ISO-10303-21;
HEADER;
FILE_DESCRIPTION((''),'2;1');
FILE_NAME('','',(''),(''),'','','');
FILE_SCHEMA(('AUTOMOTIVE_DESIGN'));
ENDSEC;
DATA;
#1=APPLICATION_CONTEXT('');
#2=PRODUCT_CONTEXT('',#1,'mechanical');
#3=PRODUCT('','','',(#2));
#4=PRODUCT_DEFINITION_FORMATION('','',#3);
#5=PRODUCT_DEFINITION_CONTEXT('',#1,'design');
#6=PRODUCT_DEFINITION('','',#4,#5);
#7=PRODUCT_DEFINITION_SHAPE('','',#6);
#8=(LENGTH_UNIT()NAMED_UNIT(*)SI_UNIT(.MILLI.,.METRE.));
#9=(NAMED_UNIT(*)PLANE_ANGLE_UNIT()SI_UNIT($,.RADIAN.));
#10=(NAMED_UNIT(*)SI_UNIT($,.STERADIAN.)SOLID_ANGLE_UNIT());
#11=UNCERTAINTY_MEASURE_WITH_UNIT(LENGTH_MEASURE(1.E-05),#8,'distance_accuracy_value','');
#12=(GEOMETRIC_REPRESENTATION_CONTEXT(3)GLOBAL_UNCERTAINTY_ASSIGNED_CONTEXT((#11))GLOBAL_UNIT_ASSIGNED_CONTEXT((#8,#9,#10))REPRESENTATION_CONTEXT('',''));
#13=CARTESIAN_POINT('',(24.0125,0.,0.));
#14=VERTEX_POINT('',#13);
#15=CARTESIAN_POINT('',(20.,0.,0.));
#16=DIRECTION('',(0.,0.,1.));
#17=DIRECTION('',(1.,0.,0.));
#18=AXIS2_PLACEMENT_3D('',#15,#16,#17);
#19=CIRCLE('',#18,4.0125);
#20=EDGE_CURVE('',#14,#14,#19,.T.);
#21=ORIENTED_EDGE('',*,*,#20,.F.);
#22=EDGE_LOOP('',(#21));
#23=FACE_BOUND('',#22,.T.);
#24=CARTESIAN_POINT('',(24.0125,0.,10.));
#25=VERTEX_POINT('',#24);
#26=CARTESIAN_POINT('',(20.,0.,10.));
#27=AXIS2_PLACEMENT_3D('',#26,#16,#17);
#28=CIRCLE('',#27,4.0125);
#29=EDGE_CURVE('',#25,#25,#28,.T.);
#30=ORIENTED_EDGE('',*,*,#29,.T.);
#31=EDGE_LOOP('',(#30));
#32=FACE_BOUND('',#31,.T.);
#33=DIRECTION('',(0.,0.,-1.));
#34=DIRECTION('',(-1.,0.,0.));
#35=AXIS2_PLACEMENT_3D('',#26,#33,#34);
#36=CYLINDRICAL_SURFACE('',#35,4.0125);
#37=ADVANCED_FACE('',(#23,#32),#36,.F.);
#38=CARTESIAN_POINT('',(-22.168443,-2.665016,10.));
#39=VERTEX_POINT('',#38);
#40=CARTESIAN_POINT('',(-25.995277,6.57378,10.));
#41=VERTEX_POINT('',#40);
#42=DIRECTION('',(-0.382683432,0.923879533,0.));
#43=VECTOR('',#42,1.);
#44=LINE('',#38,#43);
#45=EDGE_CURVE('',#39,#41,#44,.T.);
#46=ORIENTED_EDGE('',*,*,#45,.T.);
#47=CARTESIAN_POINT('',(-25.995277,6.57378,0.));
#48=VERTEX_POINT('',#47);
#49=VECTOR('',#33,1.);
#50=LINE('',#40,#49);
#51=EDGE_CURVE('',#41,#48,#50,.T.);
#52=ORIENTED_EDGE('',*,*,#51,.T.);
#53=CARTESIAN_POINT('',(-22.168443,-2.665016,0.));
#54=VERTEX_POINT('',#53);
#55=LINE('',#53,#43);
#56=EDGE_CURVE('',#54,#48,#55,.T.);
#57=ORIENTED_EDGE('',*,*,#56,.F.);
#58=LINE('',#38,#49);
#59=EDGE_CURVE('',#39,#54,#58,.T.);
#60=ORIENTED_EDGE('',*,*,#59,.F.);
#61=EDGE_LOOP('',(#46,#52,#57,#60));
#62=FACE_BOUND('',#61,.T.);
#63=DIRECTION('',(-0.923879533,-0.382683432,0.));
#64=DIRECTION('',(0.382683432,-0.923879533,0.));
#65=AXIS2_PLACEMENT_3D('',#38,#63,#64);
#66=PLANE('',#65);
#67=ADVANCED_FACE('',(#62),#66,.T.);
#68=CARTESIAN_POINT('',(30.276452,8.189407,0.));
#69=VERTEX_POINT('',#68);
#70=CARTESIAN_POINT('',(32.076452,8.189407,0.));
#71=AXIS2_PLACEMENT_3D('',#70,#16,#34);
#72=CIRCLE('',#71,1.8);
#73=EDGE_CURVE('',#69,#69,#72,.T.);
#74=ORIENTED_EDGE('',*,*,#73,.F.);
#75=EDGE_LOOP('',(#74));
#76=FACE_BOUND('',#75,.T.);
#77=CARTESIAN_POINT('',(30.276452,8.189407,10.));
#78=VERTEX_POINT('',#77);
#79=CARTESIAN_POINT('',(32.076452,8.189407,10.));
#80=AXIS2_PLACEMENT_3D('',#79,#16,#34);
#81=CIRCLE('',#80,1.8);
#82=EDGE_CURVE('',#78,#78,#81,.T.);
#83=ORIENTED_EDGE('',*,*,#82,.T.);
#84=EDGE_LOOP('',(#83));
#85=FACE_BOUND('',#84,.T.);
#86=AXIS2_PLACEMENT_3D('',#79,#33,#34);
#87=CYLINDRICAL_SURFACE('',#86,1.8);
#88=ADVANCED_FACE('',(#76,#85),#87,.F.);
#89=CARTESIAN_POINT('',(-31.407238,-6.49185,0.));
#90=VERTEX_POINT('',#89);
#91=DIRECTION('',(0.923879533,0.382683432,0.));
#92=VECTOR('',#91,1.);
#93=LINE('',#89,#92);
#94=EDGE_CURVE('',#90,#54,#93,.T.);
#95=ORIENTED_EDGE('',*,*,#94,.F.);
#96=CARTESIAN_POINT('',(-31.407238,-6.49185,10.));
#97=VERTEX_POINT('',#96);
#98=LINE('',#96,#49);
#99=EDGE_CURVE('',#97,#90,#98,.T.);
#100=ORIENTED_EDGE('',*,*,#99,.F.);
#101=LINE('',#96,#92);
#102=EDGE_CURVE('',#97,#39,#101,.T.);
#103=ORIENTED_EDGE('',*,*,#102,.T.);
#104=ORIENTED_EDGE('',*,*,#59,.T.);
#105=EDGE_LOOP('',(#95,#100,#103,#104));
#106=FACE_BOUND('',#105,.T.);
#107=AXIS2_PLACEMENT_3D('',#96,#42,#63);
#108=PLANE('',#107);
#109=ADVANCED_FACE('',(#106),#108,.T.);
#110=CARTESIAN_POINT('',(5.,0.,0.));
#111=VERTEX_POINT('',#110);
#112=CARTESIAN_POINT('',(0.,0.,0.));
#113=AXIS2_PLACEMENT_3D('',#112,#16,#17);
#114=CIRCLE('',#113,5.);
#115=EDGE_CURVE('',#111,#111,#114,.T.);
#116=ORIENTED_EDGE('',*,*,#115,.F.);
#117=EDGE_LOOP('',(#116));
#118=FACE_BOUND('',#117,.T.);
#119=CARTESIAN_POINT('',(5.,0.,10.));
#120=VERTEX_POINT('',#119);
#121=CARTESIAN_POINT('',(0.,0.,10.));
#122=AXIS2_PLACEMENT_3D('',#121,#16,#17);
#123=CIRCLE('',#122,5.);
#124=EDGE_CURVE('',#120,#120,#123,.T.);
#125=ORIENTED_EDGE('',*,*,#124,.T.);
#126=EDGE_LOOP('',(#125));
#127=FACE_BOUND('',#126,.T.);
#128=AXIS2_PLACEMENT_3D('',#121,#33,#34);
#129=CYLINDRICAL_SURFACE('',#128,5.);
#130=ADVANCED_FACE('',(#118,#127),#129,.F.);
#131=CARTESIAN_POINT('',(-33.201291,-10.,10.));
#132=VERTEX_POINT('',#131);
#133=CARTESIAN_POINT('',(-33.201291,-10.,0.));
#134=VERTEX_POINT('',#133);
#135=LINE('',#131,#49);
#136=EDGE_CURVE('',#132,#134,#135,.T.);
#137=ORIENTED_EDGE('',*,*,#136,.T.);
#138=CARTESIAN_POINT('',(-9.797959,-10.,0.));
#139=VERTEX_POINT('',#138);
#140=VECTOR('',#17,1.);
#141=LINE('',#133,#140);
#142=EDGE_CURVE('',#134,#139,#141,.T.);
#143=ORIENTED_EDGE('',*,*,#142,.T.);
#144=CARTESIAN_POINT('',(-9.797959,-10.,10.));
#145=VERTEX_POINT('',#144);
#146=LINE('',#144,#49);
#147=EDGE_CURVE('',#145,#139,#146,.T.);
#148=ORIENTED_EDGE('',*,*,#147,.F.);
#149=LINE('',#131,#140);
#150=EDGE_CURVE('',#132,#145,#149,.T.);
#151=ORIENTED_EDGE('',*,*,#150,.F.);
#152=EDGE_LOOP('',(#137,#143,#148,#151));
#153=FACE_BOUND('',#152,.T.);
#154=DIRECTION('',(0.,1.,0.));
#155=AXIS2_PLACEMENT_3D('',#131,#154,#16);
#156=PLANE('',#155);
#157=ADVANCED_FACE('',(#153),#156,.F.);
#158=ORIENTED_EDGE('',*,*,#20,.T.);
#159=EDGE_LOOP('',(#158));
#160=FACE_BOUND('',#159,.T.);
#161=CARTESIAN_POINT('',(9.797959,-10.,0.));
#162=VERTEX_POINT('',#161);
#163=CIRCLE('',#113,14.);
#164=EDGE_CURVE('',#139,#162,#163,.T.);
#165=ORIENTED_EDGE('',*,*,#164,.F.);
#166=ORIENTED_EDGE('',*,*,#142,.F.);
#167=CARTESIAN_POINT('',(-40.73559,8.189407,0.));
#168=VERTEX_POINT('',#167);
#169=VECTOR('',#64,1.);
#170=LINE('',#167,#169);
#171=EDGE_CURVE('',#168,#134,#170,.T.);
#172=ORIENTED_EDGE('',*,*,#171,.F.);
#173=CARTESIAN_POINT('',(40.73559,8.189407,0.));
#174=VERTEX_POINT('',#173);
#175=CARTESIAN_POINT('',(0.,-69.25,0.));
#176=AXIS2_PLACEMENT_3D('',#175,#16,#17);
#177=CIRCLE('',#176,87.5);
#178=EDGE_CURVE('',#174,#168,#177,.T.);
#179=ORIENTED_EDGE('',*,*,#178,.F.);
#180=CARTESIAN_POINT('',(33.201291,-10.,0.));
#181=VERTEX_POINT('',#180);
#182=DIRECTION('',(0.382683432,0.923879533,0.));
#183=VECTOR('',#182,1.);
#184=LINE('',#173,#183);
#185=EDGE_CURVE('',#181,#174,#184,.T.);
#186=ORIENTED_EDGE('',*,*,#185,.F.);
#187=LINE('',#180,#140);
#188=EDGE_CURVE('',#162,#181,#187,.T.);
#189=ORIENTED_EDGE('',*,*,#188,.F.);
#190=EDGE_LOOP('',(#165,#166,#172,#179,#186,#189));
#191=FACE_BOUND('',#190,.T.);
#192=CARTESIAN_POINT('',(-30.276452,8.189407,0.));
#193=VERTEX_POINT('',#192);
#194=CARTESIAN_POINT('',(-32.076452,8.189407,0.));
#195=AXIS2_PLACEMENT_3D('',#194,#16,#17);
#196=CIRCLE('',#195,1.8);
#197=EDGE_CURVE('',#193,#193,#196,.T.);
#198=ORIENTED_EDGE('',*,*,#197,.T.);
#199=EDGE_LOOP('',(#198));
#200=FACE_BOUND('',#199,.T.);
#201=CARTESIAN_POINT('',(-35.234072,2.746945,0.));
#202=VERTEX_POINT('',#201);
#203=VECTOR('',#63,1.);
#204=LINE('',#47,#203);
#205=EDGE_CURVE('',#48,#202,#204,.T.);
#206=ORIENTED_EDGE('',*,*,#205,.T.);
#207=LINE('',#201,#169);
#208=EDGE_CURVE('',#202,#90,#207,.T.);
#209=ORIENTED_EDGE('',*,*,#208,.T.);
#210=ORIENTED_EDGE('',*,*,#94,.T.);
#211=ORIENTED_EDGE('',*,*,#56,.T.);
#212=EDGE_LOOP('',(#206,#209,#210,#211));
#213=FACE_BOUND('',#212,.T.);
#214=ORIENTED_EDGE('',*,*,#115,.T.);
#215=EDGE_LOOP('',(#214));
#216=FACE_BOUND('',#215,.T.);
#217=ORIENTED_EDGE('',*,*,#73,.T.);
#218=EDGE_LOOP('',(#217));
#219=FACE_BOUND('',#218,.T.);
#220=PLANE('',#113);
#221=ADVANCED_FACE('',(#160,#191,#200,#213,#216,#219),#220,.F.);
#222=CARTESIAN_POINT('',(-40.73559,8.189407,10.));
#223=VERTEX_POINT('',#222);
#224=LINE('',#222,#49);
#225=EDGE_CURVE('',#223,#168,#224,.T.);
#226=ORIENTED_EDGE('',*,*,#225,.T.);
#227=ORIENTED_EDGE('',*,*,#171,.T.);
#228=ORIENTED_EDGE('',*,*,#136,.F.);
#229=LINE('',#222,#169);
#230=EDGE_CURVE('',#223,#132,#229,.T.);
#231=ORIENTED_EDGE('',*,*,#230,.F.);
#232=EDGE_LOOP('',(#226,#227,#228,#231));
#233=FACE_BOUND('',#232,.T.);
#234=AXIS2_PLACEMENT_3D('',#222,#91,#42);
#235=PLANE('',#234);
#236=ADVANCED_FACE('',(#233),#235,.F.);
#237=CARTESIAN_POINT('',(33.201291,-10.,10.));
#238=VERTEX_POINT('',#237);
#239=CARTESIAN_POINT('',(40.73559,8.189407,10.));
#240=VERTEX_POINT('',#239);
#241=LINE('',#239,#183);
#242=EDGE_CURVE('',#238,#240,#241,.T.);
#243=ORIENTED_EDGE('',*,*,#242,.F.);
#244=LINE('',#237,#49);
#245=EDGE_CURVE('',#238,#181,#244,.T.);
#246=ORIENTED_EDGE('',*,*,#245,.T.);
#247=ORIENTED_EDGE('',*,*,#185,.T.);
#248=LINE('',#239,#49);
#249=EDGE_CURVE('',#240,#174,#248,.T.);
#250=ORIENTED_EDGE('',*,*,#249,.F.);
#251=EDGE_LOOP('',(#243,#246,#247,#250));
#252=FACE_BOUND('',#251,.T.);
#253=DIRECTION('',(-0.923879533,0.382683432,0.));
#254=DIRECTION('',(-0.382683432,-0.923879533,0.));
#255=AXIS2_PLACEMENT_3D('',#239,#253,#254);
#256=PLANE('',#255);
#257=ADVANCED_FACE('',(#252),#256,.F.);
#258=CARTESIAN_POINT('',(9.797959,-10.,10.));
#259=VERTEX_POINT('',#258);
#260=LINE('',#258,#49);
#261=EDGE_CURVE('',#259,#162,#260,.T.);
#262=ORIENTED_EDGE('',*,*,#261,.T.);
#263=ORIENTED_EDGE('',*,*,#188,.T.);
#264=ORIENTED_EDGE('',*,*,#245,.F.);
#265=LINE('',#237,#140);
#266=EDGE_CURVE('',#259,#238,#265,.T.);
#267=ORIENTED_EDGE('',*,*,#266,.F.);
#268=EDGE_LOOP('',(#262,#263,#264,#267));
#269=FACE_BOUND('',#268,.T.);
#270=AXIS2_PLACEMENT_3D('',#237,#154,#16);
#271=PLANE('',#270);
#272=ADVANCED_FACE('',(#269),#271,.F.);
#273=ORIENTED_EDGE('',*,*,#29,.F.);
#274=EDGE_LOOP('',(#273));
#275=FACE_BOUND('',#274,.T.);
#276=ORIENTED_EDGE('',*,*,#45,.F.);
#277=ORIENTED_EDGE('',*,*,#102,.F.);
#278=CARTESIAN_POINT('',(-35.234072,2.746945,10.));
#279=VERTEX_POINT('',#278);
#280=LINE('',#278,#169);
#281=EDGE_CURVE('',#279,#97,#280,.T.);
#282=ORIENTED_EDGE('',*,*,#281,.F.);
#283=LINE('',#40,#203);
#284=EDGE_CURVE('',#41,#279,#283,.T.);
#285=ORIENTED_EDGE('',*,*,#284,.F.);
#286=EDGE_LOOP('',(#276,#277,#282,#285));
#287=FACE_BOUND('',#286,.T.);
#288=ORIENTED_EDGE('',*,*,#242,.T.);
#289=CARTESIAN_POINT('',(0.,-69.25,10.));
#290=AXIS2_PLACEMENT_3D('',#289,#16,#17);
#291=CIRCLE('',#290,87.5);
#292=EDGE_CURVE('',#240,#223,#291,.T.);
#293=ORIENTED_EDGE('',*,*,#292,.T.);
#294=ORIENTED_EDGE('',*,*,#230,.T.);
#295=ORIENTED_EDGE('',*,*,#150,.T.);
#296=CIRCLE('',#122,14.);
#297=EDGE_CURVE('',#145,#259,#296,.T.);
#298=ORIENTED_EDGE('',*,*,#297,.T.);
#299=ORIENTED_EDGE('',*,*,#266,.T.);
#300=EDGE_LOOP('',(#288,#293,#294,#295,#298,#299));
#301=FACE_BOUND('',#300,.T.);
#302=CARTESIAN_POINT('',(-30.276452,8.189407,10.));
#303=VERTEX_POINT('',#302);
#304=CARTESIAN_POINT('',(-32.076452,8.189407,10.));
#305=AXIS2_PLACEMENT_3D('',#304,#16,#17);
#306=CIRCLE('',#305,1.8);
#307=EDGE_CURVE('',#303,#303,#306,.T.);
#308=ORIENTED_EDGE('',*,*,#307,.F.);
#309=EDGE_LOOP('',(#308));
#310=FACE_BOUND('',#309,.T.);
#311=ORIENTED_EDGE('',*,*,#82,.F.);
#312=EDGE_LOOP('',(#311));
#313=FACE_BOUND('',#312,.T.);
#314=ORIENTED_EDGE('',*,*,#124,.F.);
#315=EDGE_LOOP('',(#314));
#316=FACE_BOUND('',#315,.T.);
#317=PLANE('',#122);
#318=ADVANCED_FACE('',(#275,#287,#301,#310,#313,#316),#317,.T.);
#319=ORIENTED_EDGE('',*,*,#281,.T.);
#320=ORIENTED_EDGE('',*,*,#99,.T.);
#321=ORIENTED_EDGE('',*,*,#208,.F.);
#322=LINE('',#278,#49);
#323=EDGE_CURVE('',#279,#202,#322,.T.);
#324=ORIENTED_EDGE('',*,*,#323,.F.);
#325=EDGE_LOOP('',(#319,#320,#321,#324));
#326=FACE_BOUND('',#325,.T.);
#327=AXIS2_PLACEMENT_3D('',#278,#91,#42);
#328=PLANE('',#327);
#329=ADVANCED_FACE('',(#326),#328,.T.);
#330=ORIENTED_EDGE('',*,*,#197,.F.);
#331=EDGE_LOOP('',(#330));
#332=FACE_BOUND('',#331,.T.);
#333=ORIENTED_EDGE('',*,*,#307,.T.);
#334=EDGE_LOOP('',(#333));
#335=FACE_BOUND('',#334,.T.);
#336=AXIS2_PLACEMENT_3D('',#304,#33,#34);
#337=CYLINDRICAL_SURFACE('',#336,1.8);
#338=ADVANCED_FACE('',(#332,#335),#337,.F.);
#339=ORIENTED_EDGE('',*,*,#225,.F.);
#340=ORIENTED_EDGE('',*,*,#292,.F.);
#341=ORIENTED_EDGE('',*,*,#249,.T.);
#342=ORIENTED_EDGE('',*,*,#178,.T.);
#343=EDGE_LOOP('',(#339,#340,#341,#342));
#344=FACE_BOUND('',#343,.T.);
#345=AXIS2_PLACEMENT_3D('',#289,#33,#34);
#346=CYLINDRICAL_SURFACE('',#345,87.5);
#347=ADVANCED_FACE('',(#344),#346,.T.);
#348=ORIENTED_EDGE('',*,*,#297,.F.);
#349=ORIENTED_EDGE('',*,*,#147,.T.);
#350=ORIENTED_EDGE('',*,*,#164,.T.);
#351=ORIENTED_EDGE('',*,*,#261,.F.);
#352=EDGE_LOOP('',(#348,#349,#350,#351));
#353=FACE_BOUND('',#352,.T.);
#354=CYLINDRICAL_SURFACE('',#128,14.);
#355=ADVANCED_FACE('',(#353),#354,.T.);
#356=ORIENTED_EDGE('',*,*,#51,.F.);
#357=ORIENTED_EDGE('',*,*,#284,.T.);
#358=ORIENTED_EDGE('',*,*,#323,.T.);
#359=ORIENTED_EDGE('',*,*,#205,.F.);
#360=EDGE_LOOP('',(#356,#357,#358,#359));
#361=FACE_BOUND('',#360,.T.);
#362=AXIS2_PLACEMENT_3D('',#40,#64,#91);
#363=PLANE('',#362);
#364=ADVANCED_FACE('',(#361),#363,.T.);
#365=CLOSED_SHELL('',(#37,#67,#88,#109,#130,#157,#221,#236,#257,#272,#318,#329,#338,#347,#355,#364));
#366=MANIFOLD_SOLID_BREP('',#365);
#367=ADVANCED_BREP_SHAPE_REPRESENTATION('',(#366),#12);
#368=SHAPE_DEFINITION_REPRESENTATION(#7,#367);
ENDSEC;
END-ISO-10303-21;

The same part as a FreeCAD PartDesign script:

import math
import FreeCAD as App
import Part
import Sketcher
from FreeCAD import Vector
Q = App.Units.Quantity

doc = App.newDocument("Part")
params = doc.addObject("Spreadsheet::Sheet", "Params")
for row, (alias, value) in enumerate([
    ("sketch1_diameter", "10 mm"),
    ("sketch1_radius", "14 mm"),
    ("sketch1_diameter2", "3.6 mm"),
    ("sketch1_radius2", "87.5 mm"),
    ("sketch1_length", "10 mm"),
    ("pad1_length", "10 mm"),
], start=1):
    params.set(f"A{row}", alias)
    params.set(f"B{row}", "=" + value)
    params.setAlias(f"B{row}", alias)

body = doc.addObject("PartDesign::Body", "Body")

sketch1 = doc.addObject("Sketcher::SketchObject", "Sketch")
body.addObject(sketch1)
sketch1.AttachmentSupport = (doc.XY_Plane, [""])
sketch1.MapMode = "FlatFace"
sketch1.addGeometry([
    Part.LineSegment(Vector(-40.7, 8.2, 0), Vector(-33.2, -10, 0)),
    Part.LineSegment(Vector(-33.2, -10, 0), Vector(-9.8, -10, 0)),
    Part.ArcOfCircle(Part.Circle(Vector(0, 0, 0), Vector(0, 0, 1), 14), math.radians(-134), math.radians(-46)),
    Part.LineSegment(Vector(9.8, -10, 0), Vector(33.2, -10, 0)),
    Part.LineSegment(Vector(33.2, -10, 0), Vector(40.7, 8.2, 0)),
    Part.ArcOfCircle(Part.Circle(Vector(0, -69.2, 0), Vector(0, 0, 1), 87.5), math.radians(62), math.radians(118)),
    Part.LineSegment(Vector(-35.2, 2.7, 0), Vector(-26, 6.6, 0)),
    Part.LineSegment(Vector(-26, 6.6, 0), Vector(-22.2, -2.7, 0)),
    Part.LineSegment(Vector(-22.2, -2.7, 0), Vector(-31.4, -6.5, 0)),
    Part.LineSegment(Vector(-31.4, -6.5, 0), Vector(-35.2, 2.7, 0)),
    Part.Circle(Vector(0, 0, 0), Vector(0, 0, 1), 5),
    Part.Circle(Vector(20, 0, 0), Vector(0, 0, 1), 4),
    Part.Circle(Vector(-32.1, 8.2, 0), Vector(0, 0, 1), 1.8),
    Part.Circle(Vector(32.1, 8.2, 0), Vector(0, 0, 1), 1.8),
], False)
sketch1.addConstraint([
    Sketcher.Constraint("Coincident", 0, 2, 1, 1),
    Sketcher.Constraint("Coincident", 1, 2, 2, 1),
    Sketcher.Constraint("Coincident", 2, 2, 3, 1),
    Sketcher.Constraint("Coincident", 3, 2, 4, 1),
    Sketcher.Constraint("Coincident", 4, 2, 5, 1),
    Sketcher.Constraint("Coincident", 5, 2, 0, 1),
    Sketcher.Constraint("Coincident", 6, 2, 7, 1),
    Sketcher.Constraint("Coincident", 7, 2, 8, 1),
    Sketcher.Constraint("Coincident", 8, 2, 9, 1),
    Sketcher.Constraint("Coincident", 9, 2, 6, 1),
    Sketcher.Constraint("Horizontal", 1),
    Sketcher.Constraint("Horizontal", 3),
    Sketcher.Constraint("Coincident", 2, 3, -1, 1),
    Sketcher.Constraint("Coincident", 10, 3, -1, 1),
    Sketcher.Constraint("Equal", 12, 13),
    Sketcher.Constraint("Symmetric", 12, 3, 13, 3, -2),
    Sketcher.Constraint("Symmetric", 0, 2, 3, 2, -2),
    Sketcher.Constraint("Symmetric", 4, 2, 5, 2, -2),
    Sketcher.Constraint("PointOnObject", 11, 3, -1),
    Sketcher.Constraint("Perpendicular", 0, 6),
    Sketcher.Constraint("Perpendicular", 6, 7),
    Sketcher.Constraint("Perpendicular", 7, 8),
    Sketcher.Constraint("Perpendicular", 8, 9),
    Sketcher.Constraint("Horizontal", 13, 3, 4, 2),
    Sketcher.Constraint("Equal", 6, 7),
    Sketcher.Constraint("Diameter", 10, 10.0),
    Sketcher.Constraint("Radius", 2, 14.0),
    Sketcher.Constraint("Diameter", 12, 3.6),
    Sketcher.Constraint("Radius", 5, 87.5),
    Sketcher.Constraint("Distance", 6, 10.0),
    Sketcher.Constraint("Diameter", 11, 8.025),
    Sketcher.Constraint("DistanceX", -1, 1, 11, 3, 20.0),
    Sketcher.Constraint("DistanceY", 0, 2, -1, 1, 10.0),
    Sketcher.Constraint("Angle", 0, Q("-67.5 deg")),
    Sketcher.Constraint("DistanceY", 5, 3, -1, 1, 69.25),
    Sketcher.Constraint("DistanceX", 3, 2, 4, 2, 7.534299),
    Sketcher.Constraint("DistanceY", -1, 1, 6, 2, 6.57378),
    Sketcher.Constraint("DistanceX", 0, 2, 12, 3, 1.124839),
    Sketcher.Constraint("DistanceX", 0, 2, 7, 2, 11.032849),
])
sketch1.setExpression("Constraints[25]", "Params.sketch1_diameter")
sketch1.setExpression("Constraints[26]", "Params.sketch1_radius")
sketch1.setExpression("Constraints[27]", "Params.sketch1_diameter2")
sketch1.setExpression("Constraints[28]", "Params.sketch1_radius2")
sketch1.setExpression("Constraints[29]", "Params.sketch1_length")
pad1 = doc.addObject("PartDesign::Pad", "Pad")
body.addObject(pad1)
pad1.Profile = sketch1
pad1.setExpression("Length", "Params.pad1_length")

doc.recompute()
